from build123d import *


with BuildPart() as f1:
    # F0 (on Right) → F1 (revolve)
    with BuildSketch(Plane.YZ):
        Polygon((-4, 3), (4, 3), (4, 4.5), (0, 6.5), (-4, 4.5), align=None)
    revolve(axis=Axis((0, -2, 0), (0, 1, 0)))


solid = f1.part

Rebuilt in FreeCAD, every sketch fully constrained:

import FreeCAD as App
import Part
import Sketcher
from FreeCAD import Vector

doc = App.newDocument("Part")
body = doc.addObject("PartDesign::Body", "Body")

sketch1 = body.newObject("Sketcher::SketchObject", "Sketch")
sketch1.AttachmentSupport = (doc.getObject("YZ_Plane"), [""])
sketch1.MapMode = "FlatFace"
sketch1.addGeometry([
    Part.LineSegment(Vector(-4, 3, 0), Vector(4, 3, 0)),
    Part.LineSegment(Vector(4, 3, 0), Vector(4, 4.5, 0)),
    Part.LineSegment(Vector(4, 4.5, 0), Vector(0, 6.5, 0)),
    Part.LineSegment(Vector(0, 6.5, 0), Vector(-4, 4.5, 0)),
    Part.LineSegment(Vector(-4, 4.5, 0), Vector(-4, 3, 0)),
], False)
sketch1.addConstraint([
    Sketcher.Constraint("Coincident", 0, 2, 1, 1),
    Sketcher.Constraint("Coincident", 1, 2, 2, 1),
    Sketcher.Constraint("Coincident", 2, 2, 3, 1),
    Sketcher.Constraint("Coincident", 3, 2, 4, 1),
    Sketcher.Constraint("Coincident", 4, 2, 0, 1),
    Sketcher.Constraint("Horizontal", 0),
    Sketcher.Constraint("Vertical", 1),
    Sketcher.Constraint("Vertical", 4),
    Sketcher.Constraint("Symmetric", 1, 2, 3, 2, -2),
    Sketcher.Constraint("PointOnObject", 2, 2, -2),
    Sketcher.Constraint("DistanceX", 0, 1, 0, 2, 8.0),
    Sketcher.Constraint("DistanceY", 1, 1, 1, 2, 1.5),
    Sketcher.Constraint("DistanceY", -1, 1, 0, 2, 3.0),
    Sketcher.Constraint("DistanceY", 1, 2, 2, 2, 2.0),
])
revolution = body.newObject("PartDesign::Revolution", "Revolution")
revolution.Profile = sketch1
revolution.ReferenceAxis = (sketch1, ["H_Axis"])
revolution.Angle = 360

doc.recompute()
